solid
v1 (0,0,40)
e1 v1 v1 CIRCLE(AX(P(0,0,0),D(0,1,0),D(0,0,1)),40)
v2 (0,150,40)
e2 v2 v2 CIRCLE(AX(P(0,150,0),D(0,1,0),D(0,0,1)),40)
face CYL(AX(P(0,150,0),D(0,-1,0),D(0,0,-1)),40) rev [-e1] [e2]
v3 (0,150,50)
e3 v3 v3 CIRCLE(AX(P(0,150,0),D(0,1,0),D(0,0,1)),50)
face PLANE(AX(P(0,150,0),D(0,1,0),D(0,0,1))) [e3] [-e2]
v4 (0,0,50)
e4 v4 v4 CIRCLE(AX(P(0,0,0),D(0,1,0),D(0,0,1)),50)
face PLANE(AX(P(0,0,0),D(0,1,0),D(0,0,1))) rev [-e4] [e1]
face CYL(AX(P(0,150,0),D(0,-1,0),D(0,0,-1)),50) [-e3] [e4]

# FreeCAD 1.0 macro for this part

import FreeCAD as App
import Part
import Sketcher
Q = App.Units.Quantity

doc = App.newDocument("Part")
body = doc.addObject("PartDesign::Body", "Body")

# Sketch on XZ plane
sketch1 = doc.addObject("Sketcher::SketchObject", "Sketch")
body.addObject(sketch1)
sketch1.AttachmentSupport = (doc.XZ_Plane, [""])
sketch1.MapMode = "FlatFace"
sketch1.addGeometry(Part.Circle(App.Vector(0, 0, 0), App.Vector(0, 0, 1), 50), False)
sketch1.addGeometry(Part.Circle(App.Vector(0, 0, 0), App.Vector(0, 0, 1), 40), False)
sketch1.addConstraint(Sketcher.Constraint("Coincident", 0, 3, -1, 1))
sketch1.addConstraint(Sketcher.Constraint("Coincident", 1, 3, -1, 1))
sketch1.addConstraint(Sketcher.Constraint("Diameter", 0, Q("100 mm")))
sketch1.addConstraint(Sketcher.Constraint("Diameter", 1, Q("80 mm")))
pad1 = doc.addObject("PartDesign::Pad", "Pad")
body.addObject(pad1)
pad1.Profile = sketch1
pad1.Length = 150
pad1.Reversed = True

doc.recompute()
